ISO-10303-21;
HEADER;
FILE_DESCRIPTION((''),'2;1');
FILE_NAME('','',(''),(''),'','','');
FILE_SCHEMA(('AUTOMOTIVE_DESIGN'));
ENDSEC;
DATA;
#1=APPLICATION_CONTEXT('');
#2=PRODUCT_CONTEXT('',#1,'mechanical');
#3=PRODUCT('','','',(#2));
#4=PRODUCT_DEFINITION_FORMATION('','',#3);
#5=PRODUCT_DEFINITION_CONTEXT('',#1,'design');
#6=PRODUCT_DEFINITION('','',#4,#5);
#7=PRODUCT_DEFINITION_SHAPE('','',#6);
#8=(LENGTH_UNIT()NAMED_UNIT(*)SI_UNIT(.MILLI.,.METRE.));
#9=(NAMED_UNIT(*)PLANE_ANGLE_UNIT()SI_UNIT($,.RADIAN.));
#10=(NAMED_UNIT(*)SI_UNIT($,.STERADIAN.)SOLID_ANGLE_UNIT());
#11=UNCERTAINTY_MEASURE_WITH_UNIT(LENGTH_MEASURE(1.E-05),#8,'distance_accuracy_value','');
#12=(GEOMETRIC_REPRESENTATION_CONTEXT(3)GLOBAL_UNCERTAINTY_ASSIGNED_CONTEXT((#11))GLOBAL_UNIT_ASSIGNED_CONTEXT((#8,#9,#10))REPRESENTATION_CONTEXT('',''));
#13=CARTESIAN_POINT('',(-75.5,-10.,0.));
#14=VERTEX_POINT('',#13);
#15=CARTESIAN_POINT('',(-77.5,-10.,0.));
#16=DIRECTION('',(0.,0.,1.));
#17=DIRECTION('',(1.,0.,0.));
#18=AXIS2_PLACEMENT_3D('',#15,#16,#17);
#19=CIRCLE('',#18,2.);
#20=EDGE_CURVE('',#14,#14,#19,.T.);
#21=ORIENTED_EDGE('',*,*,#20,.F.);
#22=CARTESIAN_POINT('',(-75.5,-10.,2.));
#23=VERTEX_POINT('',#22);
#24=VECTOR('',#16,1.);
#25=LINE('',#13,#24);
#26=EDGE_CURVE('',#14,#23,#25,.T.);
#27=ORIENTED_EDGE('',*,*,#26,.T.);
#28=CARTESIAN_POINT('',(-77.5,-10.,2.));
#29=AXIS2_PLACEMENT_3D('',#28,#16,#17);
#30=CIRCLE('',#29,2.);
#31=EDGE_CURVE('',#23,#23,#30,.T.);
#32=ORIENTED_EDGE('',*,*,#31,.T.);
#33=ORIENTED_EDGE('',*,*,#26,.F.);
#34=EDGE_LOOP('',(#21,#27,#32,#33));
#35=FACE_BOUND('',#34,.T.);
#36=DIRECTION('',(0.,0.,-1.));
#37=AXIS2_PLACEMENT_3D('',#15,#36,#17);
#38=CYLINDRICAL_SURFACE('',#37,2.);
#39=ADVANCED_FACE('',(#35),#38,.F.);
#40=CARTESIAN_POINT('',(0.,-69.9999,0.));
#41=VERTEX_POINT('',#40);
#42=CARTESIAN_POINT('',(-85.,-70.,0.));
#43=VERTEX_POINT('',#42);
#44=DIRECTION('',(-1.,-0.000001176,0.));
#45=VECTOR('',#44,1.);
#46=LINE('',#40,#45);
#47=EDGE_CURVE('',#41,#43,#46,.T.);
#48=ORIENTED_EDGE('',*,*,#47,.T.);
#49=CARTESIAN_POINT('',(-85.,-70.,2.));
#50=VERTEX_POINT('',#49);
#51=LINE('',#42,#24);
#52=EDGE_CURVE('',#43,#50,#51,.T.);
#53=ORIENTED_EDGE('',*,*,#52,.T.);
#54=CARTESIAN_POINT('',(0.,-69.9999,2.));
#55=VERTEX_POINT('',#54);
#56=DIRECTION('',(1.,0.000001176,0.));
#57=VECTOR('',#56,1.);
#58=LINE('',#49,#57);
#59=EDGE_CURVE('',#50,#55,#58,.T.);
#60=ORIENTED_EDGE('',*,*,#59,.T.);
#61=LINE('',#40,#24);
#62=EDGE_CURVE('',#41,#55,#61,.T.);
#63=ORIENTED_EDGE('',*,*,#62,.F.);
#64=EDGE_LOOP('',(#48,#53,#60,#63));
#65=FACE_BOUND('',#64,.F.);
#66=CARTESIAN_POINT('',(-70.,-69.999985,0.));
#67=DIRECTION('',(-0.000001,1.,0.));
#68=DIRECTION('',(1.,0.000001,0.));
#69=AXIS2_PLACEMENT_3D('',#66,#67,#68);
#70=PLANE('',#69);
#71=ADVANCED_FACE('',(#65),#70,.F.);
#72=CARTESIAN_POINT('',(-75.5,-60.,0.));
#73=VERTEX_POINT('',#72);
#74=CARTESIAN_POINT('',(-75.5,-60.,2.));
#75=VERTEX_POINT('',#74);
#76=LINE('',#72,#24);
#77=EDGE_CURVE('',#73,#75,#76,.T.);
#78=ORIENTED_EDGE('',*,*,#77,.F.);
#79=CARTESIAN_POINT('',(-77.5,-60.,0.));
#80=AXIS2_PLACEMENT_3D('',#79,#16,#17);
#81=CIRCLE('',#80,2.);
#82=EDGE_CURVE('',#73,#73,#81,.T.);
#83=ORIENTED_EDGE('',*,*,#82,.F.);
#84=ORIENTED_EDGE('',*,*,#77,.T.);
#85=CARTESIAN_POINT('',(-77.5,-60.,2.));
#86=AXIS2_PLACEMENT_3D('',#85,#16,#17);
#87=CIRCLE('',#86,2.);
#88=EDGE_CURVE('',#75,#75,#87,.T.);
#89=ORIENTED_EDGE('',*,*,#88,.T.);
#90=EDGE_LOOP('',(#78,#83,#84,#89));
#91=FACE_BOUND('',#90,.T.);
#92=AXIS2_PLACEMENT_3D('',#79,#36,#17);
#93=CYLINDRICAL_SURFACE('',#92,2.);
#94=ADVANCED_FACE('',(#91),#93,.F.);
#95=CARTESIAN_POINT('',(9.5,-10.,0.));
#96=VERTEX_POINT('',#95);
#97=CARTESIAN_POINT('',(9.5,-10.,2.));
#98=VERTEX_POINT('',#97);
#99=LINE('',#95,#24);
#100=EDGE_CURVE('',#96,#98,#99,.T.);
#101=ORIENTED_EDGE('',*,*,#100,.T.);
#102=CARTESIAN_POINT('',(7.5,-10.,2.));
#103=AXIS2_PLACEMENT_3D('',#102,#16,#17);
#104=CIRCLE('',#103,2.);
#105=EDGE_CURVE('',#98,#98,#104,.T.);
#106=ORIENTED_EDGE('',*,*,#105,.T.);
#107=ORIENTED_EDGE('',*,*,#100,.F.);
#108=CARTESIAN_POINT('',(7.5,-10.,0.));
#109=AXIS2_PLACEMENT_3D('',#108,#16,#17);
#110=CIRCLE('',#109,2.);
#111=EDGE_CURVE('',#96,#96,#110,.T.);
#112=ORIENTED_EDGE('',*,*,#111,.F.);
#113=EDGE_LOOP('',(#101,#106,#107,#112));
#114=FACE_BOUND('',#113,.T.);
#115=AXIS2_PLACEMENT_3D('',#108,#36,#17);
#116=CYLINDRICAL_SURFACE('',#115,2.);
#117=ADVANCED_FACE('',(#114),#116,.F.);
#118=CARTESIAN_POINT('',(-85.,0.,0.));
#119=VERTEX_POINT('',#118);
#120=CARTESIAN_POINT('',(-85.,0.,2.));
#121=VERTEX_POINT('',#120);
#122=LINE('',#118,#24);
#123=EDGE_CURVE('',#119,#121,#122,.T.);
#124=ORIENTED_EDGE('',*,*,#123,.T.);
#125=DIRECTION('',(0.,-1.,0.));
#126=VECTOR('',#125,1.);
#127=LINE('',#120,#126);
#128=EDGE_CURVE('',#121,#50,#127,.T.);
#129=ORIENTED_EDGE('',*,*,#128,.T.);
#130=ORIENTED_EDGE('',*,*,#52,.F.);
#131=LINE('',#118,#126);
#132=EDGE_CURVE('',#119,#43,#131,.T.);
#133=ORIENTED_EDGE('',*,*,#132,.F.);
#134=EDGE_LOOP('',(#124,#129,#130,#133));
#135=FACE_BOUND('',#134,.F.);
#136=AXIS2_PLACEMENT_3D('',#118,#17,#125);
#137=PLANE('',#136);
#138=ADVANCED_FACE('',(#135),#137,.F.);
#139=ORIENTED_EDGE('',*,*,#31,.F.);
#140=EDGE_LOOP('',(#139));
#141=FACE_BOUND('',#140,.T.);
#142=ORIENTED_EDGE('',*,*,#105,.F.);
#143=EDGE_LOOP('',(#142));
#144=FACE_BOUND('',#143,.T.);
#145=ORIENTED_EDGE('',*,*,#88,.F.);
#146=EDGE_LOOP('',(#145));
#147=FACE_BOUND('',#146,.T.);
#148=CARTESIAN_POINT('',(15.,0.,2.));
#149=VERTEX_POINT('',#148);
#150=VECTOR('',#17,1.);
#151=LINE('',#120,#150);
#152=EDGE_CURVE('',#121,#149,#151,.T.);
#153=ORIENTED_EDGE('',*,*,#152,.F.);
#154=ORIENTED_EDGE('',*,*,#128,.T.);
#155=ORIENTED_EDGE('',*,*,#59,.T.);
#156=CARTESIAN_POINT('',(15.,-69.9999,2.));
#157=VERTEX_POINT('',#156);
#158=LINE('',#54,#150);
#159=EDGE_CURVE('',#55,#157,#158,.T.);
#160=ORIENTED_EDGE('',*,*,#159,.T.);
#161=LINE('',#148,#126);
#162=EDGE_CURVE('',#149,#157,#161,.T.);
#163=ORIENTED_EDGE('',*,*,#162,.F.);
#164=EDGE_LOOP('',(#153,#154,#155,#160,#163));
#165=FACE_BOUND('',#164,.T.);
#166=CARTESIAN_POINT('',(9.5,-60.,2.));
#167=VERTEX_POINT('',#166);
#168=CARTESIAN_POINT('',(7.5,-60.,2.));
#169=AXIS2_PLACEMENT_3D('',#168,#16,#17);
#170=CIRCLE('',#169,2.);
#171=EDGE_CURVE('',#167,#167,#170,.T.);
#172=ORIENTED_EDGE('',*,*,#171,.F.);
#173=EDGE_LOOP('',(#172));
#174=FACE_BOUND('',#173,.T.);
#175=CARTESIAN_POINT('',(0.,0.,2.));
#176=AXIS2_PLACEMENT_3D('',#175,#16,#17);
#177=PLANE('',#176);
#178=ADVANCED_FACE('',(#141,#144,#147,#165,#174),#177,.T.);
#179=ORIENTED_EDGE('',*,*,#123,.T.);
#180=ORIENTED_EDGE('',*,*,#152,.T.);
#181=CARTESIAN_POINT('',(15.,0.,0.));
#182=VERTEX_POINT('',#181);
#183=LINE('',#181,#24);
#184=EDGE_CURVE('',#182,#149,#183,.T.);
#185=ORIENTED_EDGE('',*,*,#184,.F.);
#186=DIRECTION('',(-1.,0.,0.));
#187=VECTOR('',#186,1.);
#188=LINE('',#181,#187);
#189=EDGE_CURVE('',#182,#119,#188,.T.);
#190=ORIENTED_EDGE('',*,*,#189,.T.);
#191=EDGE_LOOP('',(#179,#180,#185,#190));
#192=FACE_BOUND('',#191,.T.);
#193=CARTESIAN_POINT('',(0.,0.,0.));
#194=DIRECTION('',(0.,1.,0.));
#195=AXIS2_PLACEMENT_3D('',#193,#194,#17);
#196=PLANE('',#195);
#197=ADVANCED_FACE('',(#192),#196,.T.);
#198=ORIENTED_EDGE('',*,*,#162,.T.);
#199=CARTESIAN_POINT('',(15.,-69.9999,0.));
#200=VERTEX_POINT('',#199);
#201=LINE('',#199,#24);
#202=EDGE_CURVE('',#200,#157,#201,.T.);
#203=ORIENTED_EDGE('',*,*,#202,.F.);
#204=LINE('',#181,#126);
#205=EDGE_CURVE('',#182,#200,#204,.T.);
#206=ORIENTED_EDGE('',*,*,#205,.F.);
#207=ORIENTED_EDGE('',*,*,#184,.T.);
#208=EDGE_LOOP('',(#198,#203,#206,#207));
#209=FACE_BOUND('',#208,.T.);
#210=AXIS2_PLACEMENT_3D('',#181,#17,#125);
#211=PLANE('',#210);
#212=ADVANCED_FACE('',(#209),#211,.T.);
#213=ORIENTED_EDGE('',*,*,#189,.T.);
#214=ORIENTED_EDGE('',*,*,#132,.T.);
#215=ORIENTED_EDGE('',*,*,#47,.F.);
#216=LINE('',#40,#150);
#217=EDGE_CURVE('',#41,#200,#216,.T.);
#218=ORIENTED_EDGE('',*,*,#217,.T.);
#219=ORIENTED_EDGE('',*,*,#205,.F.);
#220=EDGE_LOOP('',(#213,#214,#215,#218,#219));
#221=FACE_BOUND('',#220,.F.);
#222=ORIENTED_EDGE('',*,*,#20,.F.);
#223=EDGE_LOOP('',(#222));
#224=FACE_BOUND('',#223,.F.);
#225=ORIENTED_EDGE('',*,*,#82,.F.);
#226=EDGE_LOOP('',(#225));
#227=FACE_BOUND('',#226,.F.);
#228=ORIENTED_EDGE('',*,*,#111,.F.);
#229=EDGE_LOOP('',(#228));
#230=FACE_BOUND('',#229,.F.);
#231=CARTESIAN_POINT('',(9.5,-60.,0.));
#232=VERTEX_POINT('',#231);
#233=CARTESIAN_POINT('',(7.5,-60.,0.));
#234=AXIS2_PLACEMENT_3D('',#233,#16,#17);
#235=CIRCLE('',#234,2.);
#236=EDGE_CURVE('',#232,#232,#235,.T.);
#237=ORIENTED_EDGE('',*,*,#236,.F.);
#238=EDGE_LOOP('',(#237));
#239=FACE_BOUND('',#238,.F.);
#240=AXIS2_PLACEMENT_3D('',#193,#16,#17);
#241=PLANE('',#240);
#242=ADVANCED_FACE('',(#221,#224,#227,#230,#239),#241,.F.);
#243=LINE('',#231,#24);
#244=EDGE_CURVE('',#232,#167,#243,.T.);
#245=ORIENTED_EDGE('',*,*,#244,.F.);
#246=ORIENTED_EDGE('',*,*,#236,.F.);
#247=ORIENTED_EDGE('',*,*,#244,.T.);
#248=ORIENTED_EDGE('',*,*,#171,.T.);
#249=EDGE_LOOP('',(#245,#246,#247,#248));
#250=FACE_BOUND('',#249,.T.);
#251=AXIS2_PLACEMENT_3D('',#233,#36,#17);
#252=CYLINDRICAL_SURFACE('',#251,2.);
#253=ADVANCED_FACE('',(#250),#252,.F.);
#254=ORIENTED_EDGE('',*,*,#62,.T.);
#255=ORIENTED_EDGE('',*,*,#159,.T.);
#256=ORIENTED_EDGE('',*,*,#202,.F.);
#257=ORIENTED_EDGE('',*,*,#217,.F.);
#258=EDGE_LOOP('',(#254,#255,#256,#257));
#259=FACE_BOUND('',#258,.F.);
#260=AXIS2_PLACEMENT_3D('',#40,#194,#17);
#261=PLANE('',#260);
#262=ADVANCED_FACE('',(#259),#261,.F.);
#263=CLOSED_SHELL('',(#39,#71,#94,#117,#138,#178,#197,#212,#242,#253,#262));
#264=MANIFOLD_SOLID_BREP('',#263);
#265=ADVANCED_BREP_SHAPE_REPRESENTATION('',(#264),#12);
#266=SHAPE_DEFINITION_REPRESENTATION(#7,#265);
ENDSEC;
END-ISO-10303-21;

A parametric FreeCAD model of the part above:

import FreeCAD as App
import Part
import Sketcher
from FreeCAD import Vector

doc = App.newDocument("Part")
body = doc.addObject("PartDesign::Body", "Body")

# Sketch on XY plane
sketch1 = body.newObject("Sketcher::SketchObject", "Sketch")
sketch1.AttachmentSupport = (doc.getObject("XY_Plane"), [""])
sketch1.MapMode = "FlatFace"
sketch1.addGeometry([
    Part.LineSegment(Vector(15, 0, 0), Vector(-85, 0, 0)),  # 0
    Part.LineSegment(Vector(-85, 0, 0), Vector(-85, -70, 0)),  # 1
    Part.LineSegment(Vector(-85, -70, 0), Vector(0, -70, 0)),  # 2
    Part.LineSegment(Vector(0, -70, 0), Vector(15, -70, 0)),  # 3
    Part.LineSegment(Vector(15, -70, 0), Vector(15, 0, 0)),  # 4
    Part.Circle(Vector(7.5, -60, 0), Vector(0, 0, 1), 2),  # 5
    Part.Circle(Vector(7.5, -10, 0), Vector(0, 0, 1), 2),  # 6
    Part.Circle(Vector(-77.5, -10, 0), Vector(0, 0, 1), 2),  # 7
    Part.Circle(Vector(-77.5, -60, 0), Vector(0, 0, 1), 2),  # 8
], False)
sketch1.addConstraint([
    Sketcher.Constraint("Coincident", 0, 2, 1, 1),
    Sketcher.Constraint("Coincident", 1, 2, 2, 1),
    Sketcher.Constraint("Coincident", 2, 2, 3, 1),
    Sketcher.Constraint("Coincident", 3, 2, 4, 1),
    Sketcher.Constraint("Coincident", 4, 2, 0, 1),
    Sketcher.Constraint("Horizontal", 0),
    Sketcher.Constraint("Vertical", 1),
    Sketcher.Constraint("Horizontal", 2),
    Sketcher.Constraint("Horizontal", 3),
    Sketcher.Constraint("Vertical", 4),
    Sketcher.Constraint("Equal", 5, 6),
    Sketcher.Constraint("Equal", 6, 7),
    Sketcher.Constraint("Equal", 7, 8),
    Sketcher.Constraint("PointOnObject", 0, 2, -1),
    Sketcher.Constraint("PointOnObject", 2, 2, -2),
    Sketcher.Constraint("Horizontal", 6, 3, 7, 3),
    Sketcher.Constraint("Horizontal", 5, 3, 8, 3),
    Sketcher.Constraint("Vertical", 5, 3, 6, 3),
    Sketcher.Constraint("Vertical", 7, 3, 8, 3),
    Sketcher.Constraint("DistanceX", 0, 2, 0, 1, 100.0),
    Sketcher.Constraint("DistanceY", 1, 2, 1, 1, 70.0),
    Sketcher.Constraint("Diameter", 5, 4.0),
    Sketcher.Constraint("DistanceX", 2, 1, 2, 2, 85.0),
    Sketcher.Constraint("DistanceY", 5, 3, -1, 1, 60.0),
    Sketcher.Constraint("DistanceY", 6, 3, -1, 1, 10.0),
    Sketcher.Constraint("DistanceX", 7, 3, 6, 3, 85.0),
    Sketcher.Constraint("DistanceX", -1, 1, 5, 3, 7.5),
])
pad1 = body.newObject("PartDesign::Pad", "Pad")
pad1.Profile = sketch1
pad1.Length = 2

doc.recompute()
